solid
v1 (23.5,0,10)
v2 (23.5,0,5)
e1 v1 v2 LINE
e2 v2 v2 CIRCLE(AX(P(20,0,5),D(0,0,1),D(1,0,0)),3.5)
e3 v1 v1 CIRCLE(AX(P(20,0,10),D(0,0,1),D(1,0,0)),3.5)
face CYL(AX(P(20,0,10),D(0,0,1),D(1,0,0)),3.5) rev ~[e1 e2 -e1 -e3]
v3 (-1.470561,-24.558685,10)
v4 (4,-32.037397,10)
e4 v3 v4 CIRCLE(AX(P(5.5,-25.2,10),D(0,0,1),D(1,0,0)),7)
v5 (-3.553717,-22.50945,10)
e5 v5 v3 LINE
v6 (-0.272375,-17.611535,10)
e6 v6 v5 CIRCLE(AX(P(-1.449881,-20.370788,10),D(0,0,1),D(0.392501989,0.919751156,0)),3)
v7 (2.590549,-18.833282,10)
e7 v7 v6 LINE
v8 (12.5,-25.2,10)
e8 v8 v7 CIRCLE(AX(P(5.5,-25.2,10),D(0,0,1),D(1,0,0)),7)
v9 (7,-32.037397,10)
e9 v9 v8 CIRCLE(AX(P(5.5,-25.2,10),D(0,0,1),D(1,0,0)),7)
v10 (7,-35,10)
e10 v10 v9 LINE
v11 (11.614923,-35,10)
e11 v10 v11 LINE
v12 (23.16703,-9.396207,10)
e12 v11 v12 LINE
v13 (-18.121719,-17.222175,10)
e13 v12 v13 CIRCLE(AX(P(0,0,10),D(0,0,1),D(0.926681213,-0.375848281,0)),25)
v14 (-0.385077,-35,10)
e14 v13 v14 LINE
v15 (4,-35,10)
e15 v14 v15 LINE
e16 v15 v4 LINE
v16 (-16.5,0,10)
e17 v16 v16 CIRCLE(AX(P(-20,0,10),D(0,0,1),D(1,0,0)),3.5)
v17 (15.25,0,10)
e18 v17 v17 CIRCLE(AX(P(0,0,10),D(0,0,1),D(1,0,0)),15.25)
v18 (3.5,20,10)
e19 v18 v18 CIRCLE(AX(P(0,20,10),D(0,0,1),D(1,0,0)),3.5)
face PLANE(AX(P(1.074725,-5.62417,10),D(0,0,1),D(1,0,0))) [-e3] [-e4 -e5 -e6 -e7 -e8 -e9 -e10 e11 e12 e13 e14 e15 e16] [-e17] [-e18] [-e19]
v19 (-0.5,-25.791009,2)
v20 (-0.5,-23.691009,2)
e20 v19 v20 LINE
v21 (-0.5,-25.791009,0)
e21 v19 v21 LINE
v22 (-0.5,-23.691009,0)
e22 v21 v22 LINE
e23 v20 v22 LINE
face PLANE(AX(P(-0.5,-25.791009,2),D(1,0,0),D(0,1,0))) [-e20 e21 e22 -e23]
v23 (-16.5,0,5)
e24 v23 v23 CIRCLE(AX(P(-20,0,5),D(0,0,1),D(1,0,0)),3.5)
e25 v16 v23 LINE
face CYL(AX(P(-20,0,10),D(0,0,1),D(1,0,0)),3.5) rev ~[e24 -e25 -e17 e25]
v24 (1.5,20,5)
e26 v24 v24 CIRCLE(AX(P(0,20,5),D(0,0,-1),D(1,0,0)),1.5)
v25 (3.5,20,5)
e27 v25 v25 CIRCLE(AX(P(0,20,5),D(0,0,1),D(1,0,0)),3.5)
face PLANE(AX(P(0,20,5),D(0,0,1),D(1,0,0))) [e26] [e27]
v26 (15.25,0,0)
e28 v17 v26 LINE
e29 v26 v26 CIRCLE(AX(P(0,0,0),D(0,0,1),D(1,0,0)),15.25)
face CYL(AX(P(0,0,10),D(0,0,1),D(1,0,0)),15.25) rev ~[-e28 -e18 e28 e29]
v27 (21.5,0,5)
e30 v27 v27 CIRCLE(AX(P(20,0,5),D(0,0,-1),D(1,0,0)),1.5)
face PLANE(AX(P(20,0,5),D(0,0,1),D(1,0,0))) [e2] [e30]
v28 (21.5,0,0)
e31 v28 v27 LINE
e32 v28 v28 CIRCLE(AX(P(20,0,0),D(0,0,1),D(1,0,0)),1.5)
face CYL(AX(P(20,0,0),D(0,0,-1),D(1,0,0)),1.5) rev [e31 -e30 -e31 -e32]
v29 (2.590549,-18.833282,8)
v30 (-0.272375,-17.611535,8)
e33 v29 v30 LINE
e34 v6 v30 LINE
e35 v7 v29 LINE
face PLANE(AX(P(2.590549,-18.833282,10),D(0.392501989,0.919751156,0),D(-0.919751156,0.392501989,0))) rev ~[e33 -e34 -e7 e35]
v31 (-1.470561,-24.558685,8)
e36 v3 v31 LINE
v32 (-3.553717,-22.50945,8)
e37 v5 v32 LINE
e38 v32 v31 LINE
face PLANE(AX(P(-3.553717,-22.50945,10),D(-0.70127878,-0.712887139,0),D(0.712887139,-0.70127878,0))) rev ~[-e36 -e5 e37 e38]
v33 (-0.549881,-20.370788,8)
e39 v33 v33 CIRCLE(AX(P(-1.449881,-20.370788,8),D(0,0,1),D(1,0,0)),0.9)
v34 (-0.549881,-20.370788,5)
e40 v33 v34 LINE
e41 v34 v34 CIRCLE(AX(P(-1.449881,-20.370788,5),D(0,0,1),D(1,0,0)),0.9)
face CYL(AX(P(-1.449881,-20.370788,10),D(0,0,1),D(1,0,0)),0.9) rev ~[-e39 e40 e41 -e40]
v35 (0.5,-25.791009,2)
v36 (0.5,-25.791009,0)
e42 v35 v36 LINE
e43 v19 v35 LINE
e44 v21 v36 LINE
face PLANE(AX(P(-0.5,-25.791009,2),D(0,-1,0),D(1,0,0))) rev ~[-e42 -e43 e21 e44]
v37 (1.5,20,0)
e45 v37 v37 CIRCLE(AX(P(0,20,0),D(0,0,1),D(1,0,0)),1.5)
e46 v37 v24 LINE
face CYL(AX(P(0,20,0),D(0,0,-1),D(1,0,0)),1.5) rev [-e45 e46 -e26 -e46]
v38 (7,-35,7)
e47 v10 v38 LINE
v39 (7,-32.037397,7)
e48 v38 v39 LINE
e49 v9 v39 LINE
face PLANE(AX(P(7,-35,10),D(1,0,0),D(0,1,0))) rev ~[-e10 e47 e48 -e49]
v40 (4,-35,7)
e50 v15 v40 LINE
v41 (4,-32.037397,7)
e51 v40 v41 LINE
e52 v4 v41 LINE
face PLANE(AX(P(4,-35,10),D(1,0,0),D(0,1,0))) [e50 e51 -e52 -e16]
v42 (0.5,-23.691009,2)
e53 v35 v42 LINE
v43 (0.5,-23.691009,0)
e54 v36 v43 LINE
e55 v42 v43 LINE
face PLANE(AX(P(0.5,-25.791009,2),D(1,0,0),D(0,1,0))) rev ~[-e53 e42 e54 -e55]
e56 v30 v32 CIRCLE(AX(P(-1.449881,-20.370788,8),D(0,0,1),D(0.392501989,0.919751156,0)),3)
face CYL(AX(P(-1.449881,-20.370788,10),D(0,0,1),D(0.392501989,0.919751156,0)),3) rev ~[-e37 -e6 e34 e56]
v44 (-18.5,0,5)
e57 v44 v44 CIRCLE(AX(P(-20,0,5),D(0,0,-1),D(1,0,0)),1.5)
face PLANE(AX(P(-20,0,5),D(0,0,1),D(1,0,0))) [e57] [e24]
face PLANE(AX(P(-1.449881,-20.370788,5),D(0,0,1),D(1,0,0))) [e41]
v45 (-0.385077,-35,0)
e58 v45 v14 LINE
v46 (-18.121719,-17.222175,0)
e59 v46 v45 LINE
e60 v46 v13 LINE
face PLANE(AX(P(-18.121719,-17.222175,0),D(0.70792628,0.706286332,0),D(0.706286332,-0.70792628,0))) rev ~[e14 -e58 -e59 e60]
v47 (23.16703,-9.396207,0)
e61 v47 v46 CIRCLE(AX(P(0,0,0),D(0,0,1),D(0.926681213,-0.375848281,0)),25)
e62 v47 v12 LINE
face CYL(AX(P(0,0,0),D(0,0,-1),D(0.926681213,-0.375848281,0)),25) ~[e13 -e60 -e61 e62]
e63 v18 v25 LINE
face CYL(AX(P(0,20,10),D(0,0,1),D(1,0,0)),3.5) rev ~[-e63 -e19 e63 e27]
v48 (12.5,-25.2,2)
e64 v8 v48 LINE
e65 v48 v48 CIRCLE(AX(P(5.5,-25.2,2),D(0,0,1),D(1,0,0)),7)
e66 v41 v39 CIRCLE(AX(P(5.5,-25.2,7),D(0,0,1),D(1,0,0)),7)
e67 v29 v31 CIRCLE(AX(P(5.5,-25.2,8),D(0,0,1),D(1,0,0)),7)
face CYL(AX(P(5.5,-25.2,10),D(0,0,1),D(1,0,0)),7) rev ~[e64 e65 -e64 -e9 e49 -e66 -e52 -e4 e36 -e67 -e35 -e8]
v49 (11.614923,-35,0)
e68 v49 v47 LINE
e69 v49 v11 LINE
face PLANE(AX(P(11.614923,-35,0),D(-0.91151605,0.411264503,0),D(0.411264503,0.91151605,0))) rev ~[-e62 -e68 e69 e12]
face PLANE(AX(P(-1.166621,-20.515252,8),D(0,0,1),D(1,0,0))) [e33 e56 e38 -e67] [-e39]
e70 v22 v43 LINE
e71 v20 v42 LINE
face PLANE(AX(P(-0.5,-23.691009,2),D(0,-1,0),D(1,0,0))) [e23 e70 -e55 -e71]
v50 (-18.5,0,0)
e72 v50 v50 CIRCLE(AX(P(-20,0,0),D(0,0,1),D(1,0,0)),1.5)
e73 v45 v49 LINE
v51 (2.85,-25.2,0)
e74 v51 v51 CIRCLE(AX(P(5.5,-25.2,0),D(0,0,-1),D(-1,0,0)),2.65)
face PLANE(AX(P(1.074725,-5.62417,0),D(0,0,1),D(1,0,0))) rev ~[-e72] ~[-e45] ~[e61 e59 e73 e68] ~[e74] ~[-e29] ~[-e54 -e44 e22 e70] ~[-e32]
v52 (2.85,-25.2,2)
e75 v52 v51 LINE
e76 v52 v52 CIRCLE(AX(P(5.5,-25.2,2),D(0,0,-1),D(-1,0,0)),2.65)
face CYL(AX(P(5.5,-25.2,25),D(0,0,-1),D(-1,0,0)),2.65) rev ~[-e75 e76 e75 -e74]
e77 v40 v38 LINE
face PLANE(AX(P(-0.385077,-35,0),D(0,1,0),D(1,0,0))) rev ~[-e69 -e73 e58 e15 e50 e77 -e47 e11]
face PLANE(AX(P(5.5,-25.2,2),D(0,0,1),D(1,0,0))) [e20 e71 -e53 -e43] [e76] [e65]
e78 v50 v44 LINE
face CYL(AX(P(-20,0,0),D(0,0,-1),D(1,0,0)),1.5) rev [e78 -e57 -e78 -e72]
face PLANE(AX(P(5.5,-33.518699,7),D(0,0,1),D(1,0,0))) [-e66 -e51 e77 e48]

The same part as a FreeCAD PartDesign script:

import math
import FreeCAD as App
import Part
import Sketcher

V = App.Vector

doc = App.newDocument("Part")
body = doc.addObject("PartDesign::Body", "Body")

# Sketch on XY plane
sketch1 = body.newObject("Sketcher::SketchObject", "Sketch")
sketch1.AttachmentSupport = (doc.getObject("XY_Plane"), [""])
sketch1.MapMode = "FlatFace"
sketch1.addGeometry([
    Part.LineSegment(V(0, -35, 0), V(12, -35, 0)),
    Part.LineSegment(V(12, -35, 0), V(23, -9, 0)),
    Part.ArcOfCircle(Part.Circle(V(0, 0, 0), V(0, 0, 1), 25), math.radians(-22), math.radians(224)),
    Part.LineSegment(V(-18, -17, 0), V(0, -35, 0)),
], False)
sketch1.addConstraint([
    Sketcher.Constraint("Coincident", 0, 2, 1, 1),
    Sketcher.Constraint("Coincident", 1, 2, 2, 1),
    Sketcher.Constraint("Coincident", 2, 2, 3, 1),
    Sketcher.Constraint("Coincident", 3, 2, 0, 1),
    Sketcher.Constraint("Horizontal", 0),
    Sketcher.Constraint("Coincident", 2, 3, -1, 1),
    Sketcher.Constraint("Radius", 2, 25.0),
    Sketcher.Constraint("DistanceX", 0, 1, 0, 2, 12.0),
    Sketcher.Constraint("DistanceY", 0, 2, -1, 1, 35.0),
    Sketcher.Constraint("Distance", 1, 28.08924),
    Sketcher.Constraint("DistanceX", -1, 1, 1, 2, 23.16703),
    Sketcher.Constraint("DistanceX", 2, 2, -1, 1, 18.121719),
])
pad1 = body.newObject("PartDesign::Pad", "Pad")
pad1.Profile = sketch1
pad1.Length = 10

# Sketch on XY plane
sketch2 = body.newObject("Sketcher::SketchObject", "Sketch001")
sketch2.AttachmentSupport = (doc.getObject("XY_Plane"), [""])
sketch2.MapMode = "FlatFace"
sketch2.AttachmentOffset = App.Placement(V(0, 0, 10), App.Rotation())
sketch2.addGeometry(Part.Circle(V(0, 0, 0), V(0, 0, 1), 15), False)
sketch2.addConstraint([
    Sketcher.Constraint("Coincident", 0, 3, -1, 1),
    Sketcher.Constraint("Diameter", 0, 30.5),
])
pocket1 = body.newObject("PartDesign::Pocket", "Pocket")
pocket1.Profile = sketch2
pocket1.Type = "ThroughAll"

# Sketch on XY plane
sketch3 = body.newObject("Sketcher::SketchObject", "Sketch002")
sketch3.AttachmentSupport = (doc.getObject("XY_Plane"), [""])
sketch3.MapMode = "FlatFace"
sketch3.AttachmentOffset = App.Placement(V(0, 0, 10), App.Rotation())
sketch3.addGeometry(Part.Circle(V(5.5, -25.2, 0), V(0, 0, 1), 2.6), False)
sketch3.addConstraint([
    Sketcher.Constraint("Diameter", 0, 5.3),
    Sketcher.Constraint("DistanceX", -1, 1, 0, 3, 5.5),
    Sketcher.Constraint("DistanceY", 0, 3, -1, 1, 25.2),
])
doc.recompute()
hole = body.newObject("PartDesign::Hole", "Hole")
hole.Profile = sketch3
hole.ThreadType = "None"
hole.Diameter = 5.3
hole.DepthType = "Dimension"
hole.Depth = 15
hole.DrillPoint = "Flat"

# Sketch on XY plane
sketch4 = body.newObject("Sketcher::SketchObject", "Sketch003")
sketch4.AttachmentSupport = (doc.getObject("XY_Plane"), [""])
sketch4.MapMode = "FlatFace"
sketch4.AttachmentOffset = App.Placement(V(0, 0, 10), App.Rotation())
sketch4.addGeometry(Part.Circle(V(6, -25, 0), V(0, 0, 1), 7), False)
sketch4.addConstraint([
    Sketcher.Constraint("Diameter", 0, 14.0),
    Sketcher.Constraint("DistanceX", -1, 1, 0, 3, 5.5),
    Sketcher.Constraint("DistanceY", 0, 3, -1, 1, 25.2),
])
pocket2 = body.newObject("PartDesign::Pocket", "Pocket001")
pocket2.Profile = sketch4
pocket2.Length = 8

# Sketch on XY plane
sketch5 = body.newObject("Sketcher::SketchObject", "Sketch004")
sketch5.AttachmentSupport = (doc.getObject("XY_Plane"), [""])
sketch5.MapMode = "FlatFace"
sketch5.AttachmentOffset = App.Placement(V(0, 0, 10), App.Rotation())
sketch5.addGeometry([
    Part.LineSegment(V(4, -32, 0), V(4, -35, 0)),
    Part.LineSegment(V(4, -35, 0), V(7, -35, 0)),
    Part.LineSegment(V(7, -35, 0), V(7, -32, 0)),
    Part.LineSegment(V(7, -32, 0), V(4, -32, 0)),
], False)
sketch5.addConstraint([
    Sketcher.Constraint("Coincident", 0, 2, 1, 1),
    Sketcher.Constraint("Coincident", 1, 2, 2, 1),
    Sketcher.Constraint("Coincident", 2, 2, 3, 1),
    Sketcher.Constraint("Coincident", 3, 2, 0, 1),
    Sketcher.Constraint("Vertical", 0),
    Sketcher.Constraint("Horizontal", 1),
    Sketcher.Constraint("Vertical", 2),
    Sketcher.Constraint("Horizontal", 3),
    Sketcher.Constraint("DistanceX", 1, 1, 1, 2, 3.0),
    Sketcher.Constraint("DistanceX", -1, 1, 0, 2, 4.0),
    Sketcher.Constraint("DistanceY", 0, 2, -1, 1, 35.0),
    Sketcher.Constraint("DistanceY", 0, 2, 0, 1, 2.962603),
])
pocket3 = body.newObject("PartDesign::Pocket", "Pocket002")
pocket3.Profile = sketch5
pocket3.Length = 3

# Sketch on XY plane
sketch6 = body.newObject("Sketcher::SketchObject", "Sketch005")
sketch6.AttachmentSupport = (doc.getObject("XY_Plane"), [""])
sketch6.MapMode = "FlatFace"
sketch6.AttachmentOffset = App.Placement(V(0, 0, 2), App.Rotation())
sketch6.addGeometry([
    Part.LineSegment(V(-0.5, -23.7, 0), V(-0.5, -25.8, 0)),
    Part.LineSegment(V(-0.5, -25.8, 0), V(0.5, -25.8, 0)),
    Part.LineSegment(V(0.5, -25.8, 0), V(0.5, -23.7, 0)),
    Part.LineSegment(V(0.5, -23.7, 0), V(-0.5, -23.7, 0)),
], False)
sketch6.addConstraint([
    Sketcher.Constraint("Coincident", 0, 2, 1, 1),
    Sketcher.Constraint("Coincident", 1, 2, 2, 1),
    Sketcher.Constraint("Coincident", 2, 2, 3, 1),
    Sketcher.Constraint("Coincident", 3, 2, 0, 1),
    Sketcher.Constraint("Vertical", 0),
    Sketcher.Constraint("Horizontal", 1),
    Sketcher.Constraint("Vertical", 2),
    Sketcher.Constraint("Horizontal", 3),
    Sketcher.Constraint("DistanceX", 1, 1, 1, 2, 1.0),
    Sketcher.Constraint("DistanceY", 0, 2, 0, 1, 2.1),
    Sketcher.Constraint("DistanceX", 0, 2, -1, 1, 0.5),
    Sketcher.Constraint("DistanceY", 0, 2, -1, 1, 25.791009),
])
pocket4 = body.newObject("PartDesign::Pocket", "Pocket003")
pocket4.Profile = sketch6
pocket4.Type = "ThroughAll"

# Sketch on XY plane
sketch7 = body.newObject("Sketcher::SketchObject", "Sketch006")
sketch7.AttachmentSupport = (doc.getObject("XY_Plane"), [""])
sketch7.MapMode = "FlatFace"
sketch7.AttachmentOffset = App.Placement(V(0, 0, 10), App.Rotation())
sketch7.addGeometry(Part.Circle(V(-1.4, -20.4, 0), V(0, 0, 1), 0.9), False)
sketch7.addConstraint([
    Sketcher.Constraint("Diameter", 0, 1.8),
    Sketcher.Constraint("DistanceX", 0, 3, -1, 1, 1.449881),
    Sketcher.Constraint("DistanceY", 0, 3, -1, 1, 20.370788),
])
pocket5 = body.newObject("PartDesign::Pocket", "Pocket004")
pocket5.Profile = sketch7
pocket5.Length = 5

# Sketch on XY plane
sketch8 = body.newObject("Sketcher::SketchObject", "Sketch007")
sketch8.AttachmentSupport = (doc.getObject("XY_Plane"), [""])
sketch8.MapMode = "FlatFace"
sketch8.AttachmentOffset = App.Placement(V(0, 0, 10), App.Rotation())
sketch8.addGeometry([
    Part.LineSegment(V(-3.6, -22.5, 0), V(-1.5, -24.6, 0)),
    Part.LineSegment(V(-1.5, -24.6, 0), V(2.6, -18.8, 0)),
    Part.LineSegment(V(2.6, -18.8, 0), V(-0.3, -17.6, 0)),
    Part.ArcOfCircle(Part.Circle(V(-1.4, -20.4, 0), V(0, 0, 1), 3), math.radians(67), math.radians(225)),
], False)
sketch8.addConstraint([
    Sketcher.Constraint("Coincident", 0, 2, 1, 1),
    Sketcher.Constraint("Coincident", 1, 2, 2, 1),
    Sketcher.Constraint("Tangent", 2, 2, 3, 1),
    Sketcher.Constraint("Tangent", 3, 2, 0, 1),
    Sketcher.Constraint("Radius", 3, 3.0),
    Sketcher.Constraint("Distance", 0, 2.922141),
    Sketcher.Constraint("DistanceX", 3, 3, -1, 1, 1.449881),
    Sketcher.Constraint("DistanceY", 3, 3, -1, 1, 20.370788),
    Sketcher.Constraint("DistanceX", 0, 2, -1, 1, 1.470561),
    Sketcher.Constraint("DistanceX", -1, 1, 1, 2, 2.590549),
    Sketcher.Constraint("DistanceY", 0, 2, 2, 2, 6.94715),
])
pocket6 = body.newObject("PartDesign::Pocket", "Pocket005")
pocket6.Profile = sketch8
pocket6.Length = 2

# Sketch on XY plane
sketch9 = body.newObject("Sketcher::SketchObject", "Sketch008")
sketch9.AttachmentSupport = (doc.getObject("XY_Plane"), [""])
sketch9.MapMode = "FlatFace"
sketch9.addGeometry([
    Part.Circle(V(0, 20, 0), V(0, 0, 1), 1.5),
    Part.Circle(V(-20, 0, 0), V(0, 0, 1), 1.5),
    Part.Circle(V(20, 0, 0), V(0, 0, 1), 1.5),
], False)
sketch9.addConstraint([
    Sketcher.Constraint("Equal", 0, 1),
    Sketcher.Constraint("Equal", 1, 2),
    Sketcher.Constraint("Symmetric", 1, 3, 2, 3, -1, 1),
    Sketcher.Constraint("PointOnObject", 0, 3, -2),
    Sketcher.Constraint("PointOnObject", 1, 3, -1),
    Sketcher.Constraint("Diameter", 0, 3.0),
    Sketcher.Constraint("DistanceY", -1, 1, 0, 3, 20.0),
    Sketcher.Constraint("DistanceX", 1, 3, -1, 1, 20.0),
])
pocket7 = body.newObject("PartDesign::Pocket", "Pocket006")
pocket7.Profile = sketch9
pocket7.Type = "ThroughAll"
pocket7.Reversed = True

# Sketch on XY plane
sketch10 = body.newObject("Sketcher::SketchObject", "Sketch009")
sketch10.AttachmentSupport = (doc.getObject("XY_Plane"), [""])
sketch10.MapMode = "FlatFace"
sketch10.AttachmentOffset = App.Placement(V(0, 0, 10), App.Rotation())
sketch10.addGeometry([
    Part.Circle(V(-20, 0, 0), V(0, 0, 1), 3.5),
    Part.Circle(V(0, 20, 0), V(0, 0, 1), 3.5),
    Part.Circle(V(20, 0, 0), V(0, 0, 1), 3.5),
], False)
sketch10.addConstraint([
    Sketcher.Constraint("Equal", 0, 1),
    Sketcher.Constraint("Equal", 1, 2),
    Sketcher.Constraint("Symmetric", 0, 3, 2, 3, -1, 1),
    Sketcher.Constraint("PointOnObject", 0, 3, -1),
    Sketcher.Constraint("PointOnObject", 1, 3, -2),
    Sketcher.Constraint("Diameter", 0, 7.0),
    Sketcher.Constraint("DistanceX", 0, 3, -1, 1, 20.0),
    Sketcher.Constraint("DistanceY", -1, 1, 1, 3, 20.0),
])
pocket8 = body.newObject("PartDesign::Pocket", "Pocket007")
pocket8.Profile = sketch10
pocket8.Length = 5

doc.recompute()
